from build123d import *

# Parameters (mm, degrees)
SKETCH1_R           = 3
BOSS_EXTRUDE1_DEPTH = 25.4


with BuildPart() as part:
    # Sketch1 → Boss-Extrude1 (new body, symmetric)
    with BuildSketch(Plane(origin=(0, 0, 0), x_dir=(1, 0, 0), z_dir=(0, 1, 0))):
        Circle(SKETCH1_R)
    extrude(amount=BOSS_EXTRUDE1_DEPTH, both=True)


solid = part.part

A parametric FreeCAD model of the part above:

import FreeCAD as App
import Part
import Sketcher

V = App.Vector

doc = App.newDocument("Part")
params = doc.addObject("Spreadsheet::Sheet", "Params")
for row, (alias, value) in enumerate([
    ("sketch1_diameter", "6 mm"),
    ("pad1_length", "50.8 mm"),
], start=1):
    params.set(f"A{row}", alias)
    params.set(f"B{row}", "=" + value)
    params.setAlias(f"B{row}", alias)

body = doc.addObject("PartDesign::Body", "Body")

sketch1 = body.newObject("Sketcher::SketchObject", "Sketch")
sketch1.AttachmentSupport = (doc.getObject("XZ_Plane"), [""])
sketch1.MapMode = "FlatFace"
sketch1.addGeometry(Part.Circle(V(0, 0, 0), V(0, 0, 1), 3), False)
sketch1.addConstraint(Sketcher.Constraint("Coincident", 0, 3, -1, 1))
sketch1.addConstraint(Sketcher.Constraint("Diameter", 0, 6.0))
sketch1.setExpression("Constraints[1]", "Params.sketch1_diameter")
pad1 = body.newObject("PartDesign::Pad", "Pad")
pad1.Profile = sketch1
pad1.setExpression("Length", "Params.pad1_length")
pad1.Midplane = True

doc.recompute()
